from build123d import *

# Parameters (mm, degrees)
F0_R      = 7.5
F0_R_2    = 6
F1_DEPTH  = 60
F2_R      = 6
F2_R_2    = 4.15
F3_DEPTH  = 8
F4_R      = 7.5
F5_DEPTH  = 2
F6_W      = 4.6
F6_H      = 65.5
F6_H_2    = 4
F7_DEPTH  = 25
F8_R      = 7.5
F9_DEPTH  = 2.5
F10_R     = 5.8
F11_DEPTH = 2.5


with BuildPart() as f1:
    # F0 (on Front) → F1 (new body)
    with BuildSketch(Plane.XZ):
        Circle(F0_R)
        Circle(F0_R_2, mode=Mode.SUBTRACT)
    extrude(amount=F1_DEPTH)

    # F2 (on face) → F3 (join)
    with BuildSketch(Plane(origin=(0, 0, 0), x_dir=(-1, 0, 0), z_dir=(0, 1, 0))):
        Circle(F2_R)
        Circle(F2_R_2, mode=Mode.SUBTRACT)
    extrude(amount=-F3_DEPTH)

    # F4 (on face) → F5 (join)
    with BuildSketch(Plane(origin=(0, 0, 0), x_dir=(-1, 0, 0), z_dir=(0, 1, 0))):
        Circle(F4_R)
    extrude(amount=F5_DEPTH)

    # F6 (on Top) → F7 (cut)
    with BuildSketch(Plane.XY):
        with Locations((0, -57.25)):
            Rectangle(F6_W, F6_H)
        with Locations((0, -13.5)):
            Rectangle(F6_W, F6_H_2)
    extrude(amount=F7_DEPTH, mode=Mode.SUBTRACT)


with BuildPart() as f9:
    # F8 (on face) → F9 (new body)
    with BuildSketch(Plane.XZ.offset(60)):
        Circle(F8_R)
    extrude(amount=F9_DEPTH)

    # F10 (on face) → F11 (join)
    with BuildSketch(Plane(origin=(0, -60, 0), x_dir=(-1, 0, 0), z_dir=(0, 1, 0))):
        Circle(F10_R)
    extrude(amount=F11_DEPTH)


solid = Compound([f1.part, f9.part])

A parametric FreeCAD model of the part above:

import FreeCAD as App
import Part
import Sketcher

V = App.Vector


def add_polygon(sketch, points):
    """Adds a closed chain of lines whose ends are joined by coincident constraints."""
    first, n = sketch.GeometryCount, len(points)
    for a, b in zip(points, points[1:] + points[:1]):
        sketch.addGeometry(Part.LineSegment(App.Vector(*a, 0), App.Vector(*b, 0)), False)
    for i in range(n):
        sketch.addConstraint(Sketcher.Constraint("Coincident", first + i, 2, first + (i + 1) % n, 1))

doc = App.newDocument("Part")
body = doc.addObject("PartDesign::Body", "Body")

# Sketch on XZ plane
sketch1 = body.newObject("Sketcher::SketchObject", "Sketch")
sketch1.AttachmentSupport = (doc.getObject("XZ_Plane"), [""])
sketch1.MapMode = "FlatFace"
sketch1.addGeometry([
    Part.Circle(V(0, 0, 0), V(0, 0, 1), 8),
    Part.Circle(V(0, 0, 0), V(0, 0, 1), 6),
], False)
sketch1.addConstraint([
    Sketcher.Constraint("Coincident", 0, 3, -1, 1),
    Sketcher.Constraint("Coincident", 1, 3, -1, 1),
    Sketcher.Constraint("Diameter", 0, 15.0),
    Sketcher.Constraint("Diameter", 1, 12.0),
])
pad1 = body.newObject("PartDesign::Pad", "Pad")
pad1.Profile = sketch1
pad1.Length = 60

# Sketch on XZ plane
sketch2 = body.newObject("Sketcher::SketchObject", "Sketch001")
sketch2.AttachmentSupport = (doc.getObject("XZ_Plane"), [""])
sketch2.MapMode = "FlatFace"
sketch2.addGeometry([
    Part.Circle(V(0, 0, 0), V(0, 0, 1), 6),
    Part.Circle(V(0, 0, 0), V(0, 0, 1), 4.2),
], False)
sketch2.addConstraint([
    Sketcher.Constraint("Coincident", 0, 3, -1, 1),
    Sketcher.Constraint("Coincident", 1, 3, -1, 1),
    Sketcher.Constraint("Diameter", 0, 12.0),
    Sketcher.Constraint("Diameter", 1, 8.3),
])
pad2 = body.newObject("PartDesign::Pad", "Pad001")
pad2.Profile = sketch2
pad2.Length = 8

# Sketch on XZ plane
sketch3 = body.newObject("Sketcher::SketchObject", "Sketch002")
sketch3.AttachmentSupport = (doc.getObject("XZ_Plane"), [""])
sketch3.MapMode = "FlatFace"
sketch3.addGeometry(Part.Circle(V(0, 0, 0), V(0, 0, 1), 8), False)
sketch3.addConstraint([
    Sketcher.Constraint("Coincident", 0, 3, -1, 1),
    Sketcher.Constraint("Diameter", 0, 15.0),
])
pad3 = body.newObject("PartDesign::Pad", "Pad002")
pad3.Profile = sketch3
pad3.Length = 2
pad3.Reversed = True

# Sketch on XY plane
sketch4 = body.newObject("Sketcher::SketchObject", "Sketch003")
sketch4.AttachmentSupport = (doc.getObject("XY_Plane"), [""])
sketch4.MapMode = "FlatFace"
add_polygon(sketch4, [(-2.3, -24.5), (-2.3, -90), (2.3, -90), (2.3, -24.5)])  # lines 0-3
add_polygon(sketch4, [(-2.3, -11.5), (-2.3, -15.5), (2.3, -15.5), (2.3, -11.5)])  # lines 4-7
sketch4.addConstraint([
    Sketcher.Constraint("Vertical", 0),
    Sketcher.Constraint("Horizontal", 1),
    Sketcher.Constraint("Vertical", 2),
    Sketcher.Constraint("Horizontal", 3),
    Sketcher.Constraint("Vertical", 4),
    Sketcher.Constraint("Horizontal", 5),
    Sketcher.Constraint("Vertical", 6),
    Sketcher.Constraint("Horizontal", 7),
    Sketcher.Constraint("Vertical", 3, 2, 4, 2),
    Sketcher.Constraint("Vertical", 2, 2, 5, 2),
    Sketcher.Constraint("DistanceY", 4, 2, 4, 1, 4.0),
    Sketcher.Constraint("DistanceX", 1, 1, 1, 2, 4.6),
    Sketcher.Constraint("DistanceY", 0, 2, 0, 1, 65.5),
    Sketcher.Constraint("DistanceY", 0, 2, -1, 1, 90.0),
    Sketcher.Constraint("DistanceY", 3, 2, 4, 2, 9.0),
    Sketcher.Constraint("DistanceX", 0, 2, -1, 1, 2.3),
])
pocket1 = body.newObject("PartDesign::Pocket", "Pocket")
pocket1.Profile = sketch4
pocket1.Length = 25
pocket1.Reversed = True
body2 = doc.addObject("PartDesign::Body", "Body001")

# Sketch on XZ plane
sketch5 = body2.newObject("Sketcher::SketchObject", "Sketch004")
sketch5.AttachmentSupport = (doc.getObject("XZ_Plane001"), [""])
sketch5.MapMode = "FlatFace"
sketch5.AttachmentOffset = App.Placement(V(0, 0, 60), App.Rotation())
sketch5.addGeometry(Part.Circle(V(0, 0, 0), V(0, 0, 1), 8), False)
sketch5.addConstraint([
    Sketcher.Constraint("Coincident", 0, 3, -1, 1),
    Sketcher.Constraint("Diameter", 0, 15.0),
])
pad4 = body2.newObject("PartDesign::Pad", "Pad003")
pad4.Profile = sketch5
pad4.Length = 2.5

# Sketch on XZ plane
sketch6 = body2.newObject("Sketcher::SketchObject", "Sketch005")
sketch6.AttachmentSupport = (doc.getObject("XZ_Plane001"), [""])
sketch6.MapMode = "FlatFace"
sketch6.AttachmentOffset = App.Placement(V(0, 0, 60), App.Rotation())
sketch6.addGeometry(Part.Circle(V(0, 0, 0), V(0, 0, 1), 6), False)
sketch6.addConstraint([
    Sketcher.Constraint("Coincident", 0, 3, -1, 1),
    Sketcher.Constraint("Diameter", 0, 11.6),
])
pad5 = body2.newObject("PartDesign::Pad", "Pad004")
pad5.Profile = sketch6
pad5.Length = 2.5
pad5.Reversed = True

doc.recompute()
